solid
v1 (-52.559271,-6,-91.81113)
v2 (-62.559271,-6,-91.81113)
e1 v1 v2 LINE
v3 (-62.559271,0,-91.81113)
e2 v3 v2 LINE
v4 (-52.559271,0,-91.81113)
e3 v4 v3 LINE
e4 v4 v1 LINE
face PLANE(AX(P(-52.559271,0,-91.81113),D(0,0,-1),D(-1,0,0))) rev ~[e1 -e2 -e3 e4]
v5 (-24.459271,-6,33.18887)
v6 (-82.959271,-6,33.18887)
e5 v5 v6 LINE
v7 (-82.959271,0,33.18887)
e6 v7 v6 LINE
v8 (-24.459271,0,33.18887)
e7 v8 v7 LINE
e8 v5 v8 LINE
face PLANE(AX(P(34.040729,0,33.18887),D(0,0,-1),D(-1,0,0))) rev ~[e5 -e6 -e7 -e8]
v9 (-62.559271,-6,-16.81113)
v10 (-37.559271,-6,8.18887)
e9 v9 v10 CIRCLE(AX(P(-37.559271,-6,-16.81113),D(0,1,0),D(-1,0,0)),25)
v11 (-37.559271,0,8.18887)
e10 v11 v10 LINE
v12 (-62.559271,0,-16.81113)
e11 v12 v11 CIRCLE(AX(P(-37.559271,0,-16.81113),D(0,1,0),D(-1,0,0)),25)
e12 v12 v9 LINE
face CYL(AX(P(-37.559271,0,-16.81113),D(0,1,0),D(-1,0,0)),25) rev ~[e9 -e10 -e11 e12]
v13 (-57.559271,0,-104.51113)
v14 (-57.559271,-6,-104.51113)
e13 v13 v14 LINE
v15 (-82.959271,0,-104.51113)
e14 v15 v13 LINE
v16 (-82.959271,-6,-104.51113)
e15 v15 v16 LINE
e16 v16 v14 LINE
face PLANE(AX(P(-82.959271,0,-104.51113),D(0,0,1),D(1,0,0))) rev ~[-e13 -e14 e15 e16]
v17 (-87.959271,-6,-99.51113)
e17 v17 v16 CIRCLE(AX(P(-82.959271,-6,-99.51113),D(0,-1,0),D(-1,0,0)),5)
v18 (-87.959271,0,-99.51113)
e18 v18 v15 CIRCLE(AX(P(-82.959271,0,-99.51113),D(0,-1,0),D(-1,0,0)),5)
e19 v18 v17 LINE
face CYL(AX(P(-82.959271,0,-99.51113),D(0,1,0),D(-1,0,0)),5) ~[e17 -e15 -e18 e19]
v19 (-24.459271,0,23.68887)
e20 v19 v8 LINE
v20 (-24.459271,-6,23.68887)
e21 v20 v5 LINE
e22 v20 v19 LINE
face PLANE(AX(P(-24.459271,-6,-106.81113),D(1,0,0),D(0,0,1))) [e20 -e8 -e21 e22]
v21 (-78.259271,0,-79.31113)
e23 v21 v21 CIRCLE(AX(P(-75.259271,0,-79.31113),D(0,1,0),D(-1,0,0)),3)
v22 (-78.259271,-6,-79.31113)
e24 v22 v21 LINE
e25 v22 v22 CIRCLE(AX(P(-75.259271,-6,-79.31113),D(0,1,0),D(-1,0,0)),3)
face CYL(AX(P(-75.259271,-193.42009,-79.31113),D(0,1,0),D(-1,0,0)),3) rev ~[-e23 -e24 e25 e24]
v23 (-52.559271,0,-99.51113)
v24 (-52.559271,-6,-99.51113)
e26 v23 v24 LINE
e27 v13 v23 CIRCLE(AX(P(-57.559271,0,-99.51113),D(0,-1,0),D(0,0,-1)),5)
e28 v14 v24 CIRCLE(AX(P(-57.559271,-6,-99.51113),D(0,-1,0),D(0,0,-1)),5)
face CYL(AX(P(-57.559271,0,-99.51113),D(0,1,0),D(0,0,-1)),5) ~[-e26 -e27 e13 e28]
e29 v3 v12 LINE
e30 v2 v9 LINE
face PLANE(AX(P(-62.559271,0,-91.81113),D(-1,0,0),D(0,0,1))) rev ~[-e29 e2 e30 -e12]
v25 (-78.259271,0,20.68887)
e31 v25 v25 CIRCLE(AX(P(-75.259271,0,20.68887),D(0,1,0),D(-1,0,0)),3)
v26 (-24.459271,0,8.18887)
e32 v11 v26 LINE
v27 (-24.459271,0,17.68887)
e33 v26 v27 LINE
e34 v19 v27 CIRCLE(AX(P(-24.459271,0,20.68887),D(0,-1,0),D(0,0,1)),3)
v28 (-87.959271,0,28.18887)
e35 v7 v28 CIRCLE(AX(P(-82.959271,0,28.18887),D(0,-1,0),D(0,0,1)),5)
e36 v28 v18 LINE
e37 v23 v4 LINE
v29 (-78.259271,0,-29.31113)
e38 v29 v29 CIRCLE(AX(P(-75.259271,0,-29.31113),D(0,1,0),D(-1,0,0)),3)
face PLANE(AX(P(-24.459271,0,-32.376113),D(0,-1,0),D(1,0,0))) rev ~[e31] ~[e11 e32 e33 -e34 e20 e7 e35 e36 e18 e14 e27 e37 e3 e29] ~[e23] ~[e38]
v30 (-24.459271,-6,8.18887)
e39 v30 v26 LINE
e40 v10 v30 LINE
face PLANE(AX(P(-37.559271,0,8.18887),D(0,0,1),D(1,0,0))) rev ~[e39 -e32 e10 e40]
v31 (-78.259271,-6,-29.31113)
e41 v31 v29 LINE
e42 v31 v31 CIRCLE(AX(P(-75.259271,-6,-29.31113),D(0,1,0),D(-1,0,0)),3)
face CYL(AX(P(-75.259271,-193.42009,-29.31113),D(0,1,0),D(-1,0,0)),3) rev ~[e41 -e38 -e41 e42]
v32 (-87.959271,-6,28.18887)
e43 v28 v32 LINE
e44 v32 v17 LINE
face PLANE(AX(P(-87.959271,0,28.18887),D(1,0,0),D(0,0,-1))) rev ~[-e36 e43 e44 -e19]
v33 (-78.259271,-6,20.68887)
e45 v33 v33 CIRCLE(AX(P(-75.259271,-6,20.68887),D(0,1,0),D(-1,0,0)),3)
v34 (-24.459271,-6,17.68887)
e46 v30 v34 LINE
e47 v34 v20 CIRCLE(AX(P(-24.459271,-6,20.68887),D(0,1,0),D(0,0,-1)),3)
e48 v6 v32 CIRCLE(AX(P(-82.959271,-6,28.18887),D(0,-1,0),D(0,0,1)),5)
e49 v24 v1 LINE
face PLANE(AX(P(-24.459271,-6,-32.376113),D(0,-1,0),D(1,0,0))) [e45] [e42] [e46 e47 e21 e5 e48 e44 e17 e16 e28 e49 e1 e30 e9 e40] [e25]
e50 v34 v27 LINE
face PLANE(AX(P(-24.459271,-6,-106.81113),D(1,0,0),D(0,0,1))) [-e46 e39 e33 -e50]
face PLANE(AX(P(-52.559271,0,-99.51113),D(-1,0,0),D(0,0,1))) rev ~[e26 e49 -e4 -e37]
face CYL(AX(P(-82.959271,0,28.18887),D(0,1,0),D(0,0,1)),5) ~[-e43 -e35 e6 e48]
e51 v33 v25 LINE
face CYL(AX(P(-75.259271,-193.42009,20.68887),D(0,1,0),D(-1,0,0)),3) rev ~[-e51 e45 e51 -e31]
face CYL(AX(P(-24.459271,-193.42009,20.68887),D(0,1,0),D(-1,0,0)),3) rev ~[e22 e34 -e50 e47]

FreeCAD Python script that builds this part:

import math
import FreeCAD as App
import Part
import Sketcher
from FreeCAD import Vector
Q = App.Units.Quantity


def add_polygon(sketch, points):
    """Adds a closed chain of lines whose ends are joined by coincident constraints."""
    first, n = sketch.GeometryCount, len(points)
    for a, b in zip(points, points[1:] + points[:1]):
        sketch.addGeometry(Part.LineSegment(App.Vector(*a, 0), App.Vector(*b, 0)), False)
    for i in range(n):
        sketch.addConstraint(Sketcher.Constraint("Coincident", first + i, 2, first + (i + 1) % n, 1))

doc = App.newDocument("Part")
params = doc.addObject("Spreadsheet::Sheet", "Params")
for row, (alias, value) in enumerate([
    ("sketch1_radius", "5 mm"),
    ("sketch1_radius2", "25 mm"),
    ("sketch1_width", "117 mm"),
    ("sketch1_width2", "10 mm"),
    ("sketch1_height", "75 mm"),
    ("pad1_length", "6 mm"),
    ("sketch2_diameter", "6 mm"),
    ("hole_diameter", "6 mm"),
    ("sketch3_height", "140 mm"),
    ("sketch3_width", "63.5 mm"),
    ("pocket1_length", "25 mm"),
], start=1):
    params.set(f"A{row}", alias)
    params.set(f"B{row}", "=" + value)
    params.setAlias(f"B{row}", alias)

body = doc.addObject("PartDesign::Body", "Body")

# Sketch on XZ plane
sketch1 = body.newObject("Sketcher::SketchObject", "Sketch")
sketch1.AttachmentSupport = (doc.getObject("XZ_Plane"), [""])
sketch1.MapMode = "FlatFace"
sketch1.addGeometry([
    Part.LineSegment(Vector(34, 33, 0), Vector(-83, 33, 0)),  # 0
    Part.ArcOfCircle(Part.Circle(Vector(-83, 28, 0), Vector(0, 0, 1), 5), math.radians(90), math.radians(180)),  # 1
    Part.LineSegment(Vector(-88, 28, 0), Vector(-88, -100, 0)),  # 2
    Part.ArcOfCircle(Part.Circle(Vector(-83, -100, 0), Vector(0, 0, 1), 5), math.radians(-180), math.radians(-90)),  # 3
    Part.LineSegment(Vector(-83, -105, 0), Vector(-58, -105, 0)),  # 4
    Part.ArcOfCircle(Part.Circle(Vector(-58, -100, 0), Vector(0, 0, 1), 5), math.radians(-90), math.radians(0)),  # 5
    Part.LineSegment(Vector(-53, -100, 0), Vector(-53, -92, 0)),  # 6
    Part.LineSegment(Vector(-53, -92, 0), Vector(-63, -92, 0)),  # 7
    Part.LineSegment(Vector(-63, -92, 0), Vector(-63, -17, 0)),  # 8
    Part.ArcOfCircle(Part.Circle(Vector(-38, -17, 0), Vector(0, 0, 1), 25), math.radians(90), math.radians(180)),  # 9
    Part.LineSegment(Vector(-38, 8, 0), Vector(-11, 8, 0)),  # 10
    Part.ArcOfCircle(Part.Circle(Vector(-11, -17, 0), Vector(0, 0, 1), 25), math.radians(0), math.radians(90)),  # 11
    Part.LineSegment(Vector(14, -17, 0), Vector(14, -92, 0)),  # 12
    Part.LineSegment(Vector(14, -92, 0), Vector(4, -92, 0)),  # 13
    Part.LineSegment(Vector(4, -92, 0), Vector(4, -100, 0)),  # 14
    Part.ArcOfCircle(Part.Circle(Vector(9, -100, 0), Vector(0, 0, 1), 5), math.radians(-180), math.radians(-90)),  # 15
    Part.LineSegment(Vector(9, -105, 0), Vector(34, -105, 0)),  # 16
    Part.ArcOfCircle(Part.Circle(Vector(34, -100, 0), Vector(0, 0, 1), 5), math.radians(-90), math.radians(0)),  # 17
    Part.LineSegment(Vector(39, -100, 0), Vector(39, 28, 0)),  # 18
    Part.ArcOfCircle(Part.Circle(Vector(34, 28, 0), Vector(0, 0, 1), 5), math.radians(0), math.radians(90)),  # 19
], False)
sketch1.addConstraint([
    Sketcher.Constraint("Tangent", 0, 2, 1, 1),
    Sketcher.Constraint("Tangent", 1, 2, 2, 1),
    Sketcher.Constraint("Tangent", 2, 2, 3, 1),
    Sketcher.Constraint("Tangent", 3, 2, 4, 1),
    Sketcher.Constraint("Tangent", 4, 2, 5, 1),
    Sketcher.Constraint("Tangent", 5, 2, 6, 1),
    Sketcher.Constraint("Coincident", 6, 2, 7, 1),
    Sketcher.Constraint("Coincident", 7, 2, 8, 1),
    Sketcher.Constraint("Tangent", 8, 2, 9, 2),
    Sketcher.Constraint("Tangent", 9, 1, 10, 1),
    Sketcher.Constraint("Tangent", 10, 2, 11, 2),
    Sketcher.Constraint("Tangent", 11, 1, 12, 1),
    Sketcher.Constraint("Coincident", 12, 2, 13, 1),
    Sketcher.Constraint("Coincident", 13, 2, 14, 1),
    Sketcher.Constraint("Tangent", 14, 2, 15, 1),
    Sketcher.Constraint("Tangent", 15, 2, 16, 1),
    Sketcher.Constraint("Tangent", 16, 2, 17, 1),
    Sketcher.Constraint("Tangent", 17, 2, 18, 1),
    Sketcher.Constraint("Tangent", 18, 2, 19, 1),
    Sketcher.Constraint("Tangent", 19, 2, 0, 1),
    Sketcher.Constraint("Horizontal", 0),
    Sketcher.Constraint("Vertical", 2),
    Sketcher.Constraint("Horizontal", 4),
    Sketcher.Constraint("Vertical", 6),
    Sketcher.Constraint("Horizontal", 7),
    Sketcher.Constraint("Vertical", 8),
    Sketcher.Constraint("Horizontal", 10),
    Sketcher.Constraint("Vertical", 12),
    Sketcher.Constraint("Horizontal", 13),
    Sketcher.Constraint("Vertical", 14),
    Sketcher.Constraint("Horizontal", 16),
    Sketcher.Constraint("Vertical", 18),
    Sketcher.Constraint("Equal", 1, 3),
    Sketcher.Constraint("Equal", 3, 5),
    Sketcher.Constraint("Equal", 9, 11),
    Sketcher.Constraint("Equal", 5, 15),
    Sketcher.Constraint("Equal", 15, 17),
    Sketcher.Constraint("Equal", 17, 19),
    Sketcher.Constraint("Horizontal", 5, 3, 15, 3),
    Sketcher.Constraint("Horizontal", 7, 2, 12, 2),
    Sketcher.Constraint("Equal", 7, 13),
    Sketcher.Constraint("Equal", 4, 16),
    Sketcher.Constraint("Radius", 1, Q("5 mm")),
    Sketcher.Constraint("Radius", 9, Q("25 mm")),
    Sketcher.Constraint("DistanceX", 0, 2, 0, 1, Q("117 mm")),
    Sketcher.Constraint("DistanceX", 7, 2, 7, 1, Q("10 mm")),
    Sketcher.Constraint("DistanceY", 8, 1, 8, 2, Q("75 mm")),
    Sketcher.Constraint("DistanceX", 4, 1, 4, 2, Q("25.4 mm")),
    Sketcher.Constraint("DistanceY", 2, 2, 2, 1, Q("127.7 mm")),
    Sketcher.Constraint("DistanceY", 6, 1, 6, 2, Q("7.7 mm")),
    Sketcher.Constraint("DistanceX", 1, 3, -1, 1, Q("82.959271 mm")),
    Sketcher.Constraint("DistanceY", -1, 1, 1, 3, Q("28.18887 mm")),
])
sketch1.setExpression("Constraints[42]", "Params.sketch1_radius")
sketch1.setExpression("Constraints[43]", "Params.sketch1_radius2")
sketch1.setExpression("Constraints[44]", "Params.sketch1_width")
sketch1.setExpression("Constraints[45]", "Params.sketch1_width2")
sketch1.setExpression("Constraints[46]", "Params.sketch1_height")
pad1 = body.newObject("PartDesign::Pad", "Pad")
pad1.Profile = sketch1
pad1.setExpression("Length", "Params.pad1_length")

# Sketch on XZ plane
sketch2 = body.newObject("Sketcher::SketchObject", "Sketch001")
sketch2.AttachmentSupport = (doc.getObject("XZ_Plane"), [""])
sketch2.MapMode = "FlatFace"
sketch2.AttachmentOffset = App.Placement(Vector(0, 0, 6), App.Rotation())
sketch2.addGeometry([
    Part.Circle(Vector(-75.3, 20.7, 0), Vector(0, 0, 1), 3),  # 0
    Part.Circle(Vector(-75.3, -29.3, 0), Vector(0, 0, 1), 3),  # 1
    Part.Circle(Vector(-75.3, -79.3, 0), Vector(0, 0, 1), 3),  # 2
    Part.Circle(Vector(-24.5, 20.7, 0), Vector(0, 0, 1), 3),  # 3
    Part.Circle(Vector(26.3, 20.7, 0), Vector(0, 0, 1), 3),  # 4
    Part.Circle(Vector(26.3, -29.3, 0), Vector(0, 0, 1), 3),  # 5
    Part.Circle(Vector(26.3, -79.3, 0), Vector(0, 0, 1), 3),  # 6
], False)
sketch2.addConstraint([
    Sketcher.Constraint("Equal", 0, 1),
    Sketcher.Constraint("Equal", 1, 2),
    Sketcher.Constraint("Equal", 2, 3),
    Sketcher.Constraint("Equal", 3, 4),
    Sketcher.Constraint("Equal", 4, 5),
    Sketcher.Constraint("Equal", 5, 6),
    Sketcher.Constraint("Horizontal", 0, 3, 3, 3),
    Sketcher.Constraint("Horizontal", 3, 3, 4, 3),
    Sketcher.Constraint("Horizontal", 1, 3, 5, 3),
    Sketcher.Constraint("Horizontal", 2, 3, 6, 3),
    Sketcher.Constraint("Vertical", 0, 3, 1, 3),
    Sketcher.Constraint("Vertical", 1, 3, 2, 3),
    Sketcher.Constraint("Vertical", 4, 3, 5, 3),
    Sketcher.Constraint("Vertical", 5, 3, 6, 3),
    Sketcher.Constraint("Diameter", 0, Q("6 mm")),
    Sketcher.Constraint("DistanceY", 1, 3, 0, 3, Q("50 mm")),
    Sketcher.Constraint("DistanceY", 2, 3, 1, 3, Q("50 mm")),
    Sketcher.Constraint("DistanceX", 0, 3, 3, 3, Q("50.8 mm")),
    Sketcher.Constraint("DistanceX", 3, 3, 4, 3, Q("50.8 mm")),
    Sketcher.Constraint("DistanceX", 0, 3, -1, 1, Q("75.259271 mm")),
    Sketcher.Constraint("DistanceY", -1, 1, 0, 3, Q("20.68887 mm")),
])
sketch2.setExpression("Constraints[14]", "Params.sketch2_diameter")
doc.recompute()
hole = body.newObject("PartDesign::Hole", "Hole")
hole.Profile = sketch2
hole.ThreadType = "None"
hole.setExpression("Diameter", "Params.hole_diameter")
hole.DepthType = "ThroughAll"

# Sketch on XZ plane
sketch3 = body.newObject("Sketcher::SketchObject", "Sketch002")
sketch3.AttachmentSupport = (doc.getObject("XZ_Plane"), [""])
sketch3.MapMode = "FlatFace"
sketch3.AttachmentOffset = App.Placement(Vector(0, 0, 6), App.Rotation())
add_polygon(sketch3, [(-24, 33), (-24, -107), (39, -107), (39, 33)])  # lines 0-3
sketch3.addConstraint([
    Sketcher.Constraint("Vertical", 0),
    Sketcher.Constraint("Horizontal", 1),
    Sketcher.Constraint("Vertical", 2),
    Sketcher.Constraint("Horizontal", 3),
    Sketcher.Constraint("DistanceY", 0, 2, 0, 1, Q("140 mm")),
    Sketcher.Constraint("DistanceX", 1, 1, 1, 2, Q("63.5 mm")),
    Sketcher.Constraint("DistanceX", 0, 2, -1, 1, Q("24.459271 mm")),
    Sketcher.Constraint("DistanceY", 0, 2, -1, 1, Q("106.81113 mm")),
])
sketch3.setExpression("Constraints[8]", "Params.sketch3_height")
sketch3.setExpression("Constraints[9]", "Params.sketch3_width")
pocket1 = body.newObject("PartDesign::Pocket", "Pocket")
pocket1.Profile = sketch3
pocket1.setExpression("Length", "Params.pocket1_length")

doc.recompute()
